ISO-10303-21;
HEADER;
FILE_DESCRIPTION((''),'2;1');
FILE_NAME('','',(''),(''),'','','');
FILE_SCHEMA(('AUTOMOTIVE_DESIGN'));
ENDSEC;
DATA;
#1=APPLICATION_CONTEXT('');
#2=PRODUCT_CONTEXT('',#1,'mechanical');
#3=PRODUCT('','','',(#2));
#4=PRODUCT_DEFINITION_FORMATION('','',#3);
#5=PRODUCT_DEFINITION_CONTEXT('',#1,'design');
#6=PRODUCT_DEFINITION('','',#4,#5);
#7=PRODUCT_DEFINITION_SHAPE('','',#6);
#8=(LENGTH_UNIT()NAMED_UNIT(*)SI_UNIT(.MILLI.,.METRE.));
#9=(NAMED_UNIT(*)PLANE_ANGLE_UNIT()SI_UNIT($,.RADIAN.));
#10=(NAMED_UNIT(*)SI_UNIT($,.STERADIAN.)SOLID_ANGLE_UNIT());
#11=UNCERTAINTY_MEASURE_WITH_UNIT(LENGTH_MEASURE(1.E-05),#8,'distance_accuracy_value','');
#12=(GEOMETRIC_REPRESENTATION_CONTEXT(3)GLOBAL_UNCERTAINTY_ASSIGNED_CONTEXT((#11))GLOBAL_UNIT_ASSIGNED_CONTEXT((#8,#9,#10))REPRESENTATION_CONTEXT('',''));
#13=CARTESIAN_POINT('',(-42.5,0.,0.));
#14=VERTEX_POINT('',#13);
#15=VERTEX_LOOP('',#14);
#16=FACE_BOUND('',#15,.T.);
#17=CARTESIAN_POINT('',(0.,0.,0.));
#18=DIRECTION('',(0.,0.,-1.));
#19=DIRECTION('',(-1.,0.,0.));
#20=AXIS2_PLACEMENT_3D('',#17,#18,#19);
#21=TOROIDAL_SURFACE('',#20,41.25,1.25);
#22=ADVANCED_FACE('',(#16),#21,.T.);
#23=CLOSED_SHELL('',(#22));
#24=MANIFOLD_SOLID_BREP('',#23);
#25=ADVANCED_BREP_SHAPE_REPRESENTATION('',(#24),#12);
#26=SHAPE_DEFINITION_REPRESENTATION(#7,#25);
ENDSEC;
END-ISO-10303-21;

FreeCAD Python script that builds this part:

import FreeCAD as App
import Part
import Sketcher
from FreeCAD import Vector
Q = App.Units.Quantity

doc = App.newDocument("Part")
body = doc.addObject("PartDesign::Body", "Body")

# Sketch on XZ plane
sketch1 = doc.addObject("Sketcher::SketchObject", "Sketch")
body.addObject(sketch1)
sketch1.AttachmentSupport = (doc.XZ_Plane, [""])
sketch1.MapMode = "FlatFace"
sketch1.addGeometry(Part.Circle(Vector(41.2, 0, 0), Vector(0, 0, 1), 1.2), False)
sketch1.addConstraint([
    Sketcher.Constraint("PointOnObject", 0, 3, -1),
    Sketcher.Constraint("Diameter", 0, Q("2.5 mm")),
    Sketcher.Constraint("DistanceX", -1, 1, 0, 3, Q("41.25 mm")),
])
revolution = doc.addObject("PartDesign::Revolution", "Revolution")
body.addObject(revolution)
revolution.Profile = sketch1
revolution.ReferenceAxis = (sketch1, ["V_Axis"])
revolution.Angle = 360

doc.recompute()
